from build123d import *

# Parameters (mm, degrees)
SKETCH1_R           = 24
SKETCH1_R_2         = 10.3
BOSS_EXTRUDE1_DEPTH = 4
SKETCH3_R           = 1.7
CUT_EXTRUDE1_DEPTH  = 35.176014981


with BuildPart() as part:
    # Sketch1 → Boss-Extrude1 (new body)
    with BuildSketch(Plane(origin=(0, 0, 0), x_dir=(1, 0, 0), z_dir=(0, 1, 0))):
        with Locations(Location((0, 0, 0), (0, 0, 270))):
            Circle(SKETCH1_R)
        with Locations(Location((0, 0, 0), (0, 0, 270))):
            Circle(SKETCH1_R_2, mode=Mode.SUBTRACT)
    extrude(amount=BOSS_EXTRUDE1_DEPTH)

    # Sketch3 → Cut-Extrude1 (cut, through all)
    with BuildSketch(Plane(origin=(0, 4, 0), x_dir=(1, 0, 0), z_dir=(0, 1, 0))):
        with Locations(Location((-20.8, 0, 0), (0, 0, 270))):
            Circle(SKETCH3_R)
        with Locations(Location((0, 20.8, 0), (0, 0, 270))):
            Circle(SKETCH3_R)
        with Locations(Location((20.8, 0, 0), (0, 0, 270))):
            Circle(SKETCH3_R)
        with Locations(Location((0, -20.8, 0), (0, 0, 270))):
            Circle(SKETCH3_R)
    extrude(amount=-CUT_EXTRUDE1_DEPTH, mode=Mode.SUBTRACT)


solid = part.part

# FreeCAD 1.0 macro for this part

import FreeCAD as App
import Part
import Sketcher

V = App.Vector
Q = App.Units.Quantity

doc = App.newDocument("Part")
body = doc.addObject("PartDesign::Body", "Body")

# Sketch on XZ plane
sketch1 = body.newObject("Sketcher::SketchObject", "Sketch")
sketch1.AttachmentSupport = (doc.getObject("XZ_Plane"), [""])
sketch1.MapMode = "FlatFace"
sketch1.addGeometry([
    Part.Circle(V(0, 0, 0), V(0, 0, 1), 24),
    Part.Circle(V(0, 0, 0), V(0, 0, 1), 10),
], False)
sketch1.addConstraint([
    Sketcher.Constraint("Coincident", 0, 3, -1, 1),
    Sketcher.Constraint("Coincident", 1, 3, -1, 1),
    Sketcher.Constraint("Diameter", 0, Q("48 mm")),
    Sketcher.Constraint("Diameter", 1, Q("20.6 mm")),
])
pad1 = body.newObject("PartDesign::Pad", "Pad")
pad1.Profile = sketch1
pad1.Length = 4
pad1.Reversed = True

# Sketch on XZ plane
sketch2 = body.newObject("Sketcher::SketchObject", "Sketch001")
sketch2.AttachmentSupport = (doc.getObject("XZ_Plane"), [""])
sketch2.MapMode = "FlatFace"
sketch2.AttachmentOffset = App.Placement(V(0, 0, -4), App.Rotation())
sketch2.addGeometry([
    Part.Circle(V(-20.8, 0, 0), V(0, 0, 1), 1.7),
    Part.Circle(V(0, -20.8, 0), V(0, 0, 1), 1.7),
    Part.Circle(V(20.8, 0, 0), V(0, 0, 1), 1.7),
    Part.Circle(V(0, 20.8, 0), V(0, 0, 1), 1.7),
], False)
sketch2.addConstraint([
    Sketcher.Constraint("Equal", 0, 1),
    Sketcher.Constraint("Equal", 1, 2),
    Sketcher.Constraint("Equal", 2, 3),
    Sketcher.Constraint("Symmetric", 0, 3, 2, 3, -1, 1),
    Sketcher.Constraint("Symmetric", 1, 3, 3, 3, -1, 1),
    Sketcher.Constraint("PointOnObject", 0, 3, -1),
    Sketcher.Constraint("PointOnObject", 1, 3, -2),
    Sketcher.Constraint("Diameter", 0, Q("3.4 mm")),
    Sketcher.Constraint("DistanceX", 0, 3, -1, 1, Q("20.8 mm")),
    Sketcher.Constraint("DistanceY", 1, 3, -1, 1, Q("20.8 mm")),
])
pocket1 = body.newObject("PartDesign::Pocket", "Pocket")
pocket1.Profile = sketch2
pocket1.Type = "ThroughAll"
pocket1.Reversed = True

doc.recompute()
